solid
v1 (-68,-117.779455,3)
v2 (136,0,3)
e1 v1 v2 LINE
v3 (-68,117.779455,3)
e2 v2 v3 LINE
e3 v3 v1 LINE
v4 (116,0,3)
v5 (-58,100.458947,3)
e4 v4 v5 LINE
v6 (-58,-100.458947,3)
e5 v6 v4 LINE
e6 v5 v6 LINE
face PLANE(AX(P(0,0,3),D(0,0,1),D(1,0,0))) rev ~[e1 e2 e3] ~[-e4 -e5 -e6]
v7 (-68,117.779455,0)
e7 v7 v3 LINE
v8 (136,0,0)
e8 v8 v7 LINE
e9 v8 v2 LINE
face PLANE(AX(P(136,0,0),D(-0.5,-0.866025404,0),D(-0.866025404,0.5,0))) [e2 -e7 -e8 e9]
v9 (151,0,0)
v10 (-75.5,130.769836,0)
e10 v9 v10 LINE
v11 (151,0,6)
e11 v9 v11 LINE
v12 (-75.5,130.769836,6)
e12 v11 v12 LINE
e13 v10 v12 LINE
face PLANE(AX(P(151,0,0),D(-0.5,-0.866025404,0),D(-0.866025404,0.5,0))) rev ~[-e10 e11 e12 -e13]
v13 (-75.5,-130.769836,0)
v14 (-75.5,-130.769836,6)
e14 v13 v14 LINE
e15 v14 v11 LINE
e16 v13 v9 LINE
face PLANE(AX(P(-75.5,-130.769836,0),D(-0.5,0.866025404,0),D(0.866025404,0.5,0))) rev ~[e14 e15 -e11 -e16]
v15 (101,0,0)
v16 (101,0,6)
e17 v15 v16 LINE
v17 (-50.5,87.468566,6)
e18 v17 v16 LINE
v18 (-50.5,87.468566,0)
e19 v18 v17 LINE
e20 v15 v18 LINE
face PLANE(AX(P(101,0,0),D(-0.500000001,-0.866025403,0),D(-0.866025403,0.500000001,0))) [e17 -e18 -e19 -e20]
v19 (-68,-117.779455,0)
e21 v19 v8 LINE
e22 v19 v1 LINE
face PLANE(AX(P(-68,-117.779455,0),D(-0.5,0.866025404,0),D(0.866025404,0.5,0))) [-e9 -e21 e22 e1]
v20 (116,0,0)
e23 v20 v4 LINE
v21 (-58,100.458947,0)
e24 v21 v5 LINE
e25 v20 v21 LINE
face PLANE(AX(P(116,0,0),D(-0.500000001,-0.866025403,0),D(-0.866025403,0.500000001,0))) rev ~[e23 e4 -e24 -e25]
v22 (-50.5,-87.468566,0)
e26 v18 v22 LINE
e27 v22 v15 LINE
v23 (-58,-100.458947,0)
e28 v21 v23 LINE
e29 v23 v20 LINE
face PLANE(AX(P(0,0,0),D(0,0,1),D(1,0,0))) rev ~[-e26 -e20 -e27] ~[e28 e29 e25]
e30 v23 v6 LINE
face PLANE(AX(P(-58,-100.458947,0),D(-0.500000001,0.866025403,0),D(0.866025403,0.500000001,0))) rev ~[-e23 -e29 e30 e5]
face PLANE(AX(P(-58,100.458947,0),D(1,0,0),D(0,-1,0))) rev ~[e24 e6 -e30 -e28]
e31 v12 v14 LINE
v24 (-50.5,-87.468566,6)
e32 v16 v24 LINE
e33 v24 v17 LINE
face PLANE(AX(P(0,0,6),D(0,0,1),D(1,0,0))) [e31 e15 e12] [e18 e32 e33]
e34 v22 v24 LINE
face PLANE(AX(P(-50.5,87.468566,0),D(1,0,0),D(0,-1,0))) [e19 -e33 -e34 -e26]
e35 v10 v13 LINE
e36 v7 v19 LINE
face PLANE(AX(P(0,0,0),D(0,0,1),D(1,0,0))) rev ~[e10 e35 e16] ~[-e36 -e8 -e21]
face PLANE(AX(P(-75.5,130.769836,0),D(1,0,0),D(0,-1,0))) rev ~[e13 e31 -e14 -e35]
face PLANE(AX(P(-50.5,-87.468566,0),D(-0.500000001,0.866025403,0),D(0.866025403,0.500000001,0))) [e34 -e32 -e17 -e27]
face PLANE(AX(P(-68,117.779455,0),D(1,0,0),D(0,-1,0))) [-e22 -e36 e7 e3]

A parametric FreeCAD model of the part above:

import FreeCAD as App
import Part
import Sketcher

V = App.Vector
Q = App.Units.Quantity

doc = App.newDocument("Part")
body = doc.addObject("PartDesign::Body", "Body")

# Sketch on XY plane
sketch1 = body.newObject("Sketcher::SketchObject", "Sketch")
sketch1.AttachmentSupport = (doc.getObject("XY_Plane"), [""])
sketch1.MapMode = "FlatFace"
sketch1.addGeometry([
    Part.LineSegment(V(101, 0, 0), V(-50.5, 87.468566, 0)),
    Part.LineSegment(V(-50.5, 87.468566, 0), V(-50.5, -87.468566, 0)),
    Part.LineSegment(V(-50.5, -87.468566, 0), V(101, 0, 0)),
], False)
sketch1.addConstraint([
    Sketcher.Constraint("Coincident", 0, 2, 1, 1),
    Sketcher.Constraint("Coincident", 1, 2, 2, 1),
    Sketcher.Constraint("Coincident", 2, 2, 0, 1),
    Sketcher.Constraint("Vertical", 1),
    Sketcher.Constraint("PointOnObject", 2, 2, -1),
    Sketcher.Constraint("Equal", 0, 2),
    Sketcher.Constraint("Angle", 0, Q("150 deg")),
    Sketcher.Constraint("DistanceX", -1, 1, 2, 2, Q("101 mm")),
    Sketcher.Constraint("DistanceX", 0, 2, -1, 1, Q("50.5 mm")),
])
pad1 = body.newObject("PartDesign::Pad", "Pad")
pad1.Profile = sketch1
pad1.Length = 15
body2 = doc.addObject("PartDesign::Body", "Body001")

# Sketch on XY plane
sketch2 = body2.newObject("Sketcher::SketchObject", "Sketch001")
sketch2.AttachmentSupport = (doc.getObject("XY_Plane001"), [""])
sketch2.MapMode = "FlatFace"
sketch2.addGeometry([
    Part.LineSegment(V(116, 0, 0), V(-58, 100.458947, 0)),
    Part.LineSegment(V(-58, 100.458947, 0), V(-58, -100.458947, 0)),
    Part.LineSegment(V(-58, -100.458947, 0), V(116, 0, 0)),
], False)
sketch2.addConstraint([
    Sketcher.Constraint("Coincident", 0, 2, 1, 1),
    Sketcher.Constraint("Coincident", 1, 2, 2, 1),
    Sketcher.Constraint("Coincident", 2, 2, 0, 1),
    Sketcher.Constraint("Vertical", 1),
    Sketcher.Constraint("PointOnObject", 2, 2, -1),
    Sketcher.Constraint("Equal", 0, 2),
    Sketcher.Constraint("Angle", 0, Q("150 deg")),
    Sketcher.Constraint("DistanceX", 0, 2, -1, 1, Q("58 mm")),
    Sketcher.Constraint("DistanceX", -1, 1, 2, 2, Q("116 mm")),
])
pad2 = body2.newObject("PartDesign::Pad", "Pad001")
pad2.Profile = sketch2
pad2.Length = 3
body3 = doc.addObject("PartDesign::Body", "Body002")

# Sketch on XY plane
sketch3 = body3.newObject("Sketcher::SketchObject", "Sketch002")
sketch3.AttachmentSupport = (doc.getObject("XY_Plane002"), [""])
sketch3.MapMode = "FlatFace"
sketch3.addGeometry([
    Part.LineSegment(V(136, 0, 0), V(-68, 117.779455, 0)),
    Part.LineSegment(V(-68, 117.779455, 0), V(-68, -117.779455, 0)),
    Part.LineSegment(V(-68, -117.779455, 0), V(136, 0, 0)),
], False)
sketch3.addConstraint([
    Sketcher.Constraint("Coincident", 0, 2, 1, 1),
    Sketcher.Constraint("Coincident", 1, 2, 2, 1),
    Sketcher.Constraint("Coincident", 2, 2, 0, 1),
    Sketcher.Constraint("Vertical", 1),
    Sketcher.Constraint("PointOnObject", 2, 2, -1),
    Sketcher.Constraint("Equal", 0, 2),
    Sketcher.Constraint("Angle", 0, Q("150 deg")),
    Sketcher.Constraint("DistanceX", 0, 2, -1, 1, Q("68 mm")),
    Sketcher.Constraint("DistanceX", -1, 1, 2, 2, Q("136 mm")),
])
pad3 = body3.newObject("PartDesign::Pad", "Pad002")
pad3.Profile = sketch3
pad3.Length = 3
doc.recompute()

boolean = body3.newObject("PartDesign::Boolean", "Boolean")
boolean.Type = "Cut"
boolean.addObjects([body2])
body4 = doc.addObject("PartDesign::Body", "Body003")

# Sketch on XY plane
sketch4 = body4.newObject("Sketcher::SketchObject", "Sketch003")
sketch4.AttachmentSupport = (doc.getObject("XY_Plane003"), [""])
sketch4.MapMode = "FlatFace"
sketch4.addGeometry([
    Part.LineSegment(V(151, 0, 0), V(-75.5, 130.769836, 0)),
    Part.LineSegment(V(-75.5, 130.769836, 0), V(-75.5, -130.769836, 0)),
    Part.LineSegment(V(-75.5, -130.769836, 0), V(151, 0, 0)),
], False)
sketch4.addConstraint([
    Sketcher.Constraint("Coincident", 0, 2, 1, 1),
    Sketcher.Constraint("Coincident", 1, 2, 2, 1),
    Sketcher.Constraint("Coincident", 2, 2, 0, 1),
    Sketcher.Constraint("Vertical", 1),
    Sketcher.Constraint("PointOnObject", 2, 2, -1),
    Sketcher.Constraint("Equal", 0, 2),
    Sketcher.Constraint("Angle", 0, Q("150 deg")),
    Sketcher.Constraint("DistanceX", -1, 1, 2, 2, Q("151 mm")),
    Sketcher.Constraint("DistanceX", 0, 2, -1, 1, Q("75.5 mm")),
])
pad4 = body4.newObject("PartDesign::Pad", "Pad003")
pad4.Profile = sketch4
pad4.Length = 6
doc.recompute()

boolean2 = body4.newObject("PartDesign::Boolean", "Boolean001")
boolean2.Type = "Cut"
boolean2.addObjects([body3])
doc.recompute()

boolean3 = body4.newObject("PartDesign::Boolean", "Boolean002")
boolean3.Type = "Cut"
boolean3.addObjects([body])

doc.recompute()
